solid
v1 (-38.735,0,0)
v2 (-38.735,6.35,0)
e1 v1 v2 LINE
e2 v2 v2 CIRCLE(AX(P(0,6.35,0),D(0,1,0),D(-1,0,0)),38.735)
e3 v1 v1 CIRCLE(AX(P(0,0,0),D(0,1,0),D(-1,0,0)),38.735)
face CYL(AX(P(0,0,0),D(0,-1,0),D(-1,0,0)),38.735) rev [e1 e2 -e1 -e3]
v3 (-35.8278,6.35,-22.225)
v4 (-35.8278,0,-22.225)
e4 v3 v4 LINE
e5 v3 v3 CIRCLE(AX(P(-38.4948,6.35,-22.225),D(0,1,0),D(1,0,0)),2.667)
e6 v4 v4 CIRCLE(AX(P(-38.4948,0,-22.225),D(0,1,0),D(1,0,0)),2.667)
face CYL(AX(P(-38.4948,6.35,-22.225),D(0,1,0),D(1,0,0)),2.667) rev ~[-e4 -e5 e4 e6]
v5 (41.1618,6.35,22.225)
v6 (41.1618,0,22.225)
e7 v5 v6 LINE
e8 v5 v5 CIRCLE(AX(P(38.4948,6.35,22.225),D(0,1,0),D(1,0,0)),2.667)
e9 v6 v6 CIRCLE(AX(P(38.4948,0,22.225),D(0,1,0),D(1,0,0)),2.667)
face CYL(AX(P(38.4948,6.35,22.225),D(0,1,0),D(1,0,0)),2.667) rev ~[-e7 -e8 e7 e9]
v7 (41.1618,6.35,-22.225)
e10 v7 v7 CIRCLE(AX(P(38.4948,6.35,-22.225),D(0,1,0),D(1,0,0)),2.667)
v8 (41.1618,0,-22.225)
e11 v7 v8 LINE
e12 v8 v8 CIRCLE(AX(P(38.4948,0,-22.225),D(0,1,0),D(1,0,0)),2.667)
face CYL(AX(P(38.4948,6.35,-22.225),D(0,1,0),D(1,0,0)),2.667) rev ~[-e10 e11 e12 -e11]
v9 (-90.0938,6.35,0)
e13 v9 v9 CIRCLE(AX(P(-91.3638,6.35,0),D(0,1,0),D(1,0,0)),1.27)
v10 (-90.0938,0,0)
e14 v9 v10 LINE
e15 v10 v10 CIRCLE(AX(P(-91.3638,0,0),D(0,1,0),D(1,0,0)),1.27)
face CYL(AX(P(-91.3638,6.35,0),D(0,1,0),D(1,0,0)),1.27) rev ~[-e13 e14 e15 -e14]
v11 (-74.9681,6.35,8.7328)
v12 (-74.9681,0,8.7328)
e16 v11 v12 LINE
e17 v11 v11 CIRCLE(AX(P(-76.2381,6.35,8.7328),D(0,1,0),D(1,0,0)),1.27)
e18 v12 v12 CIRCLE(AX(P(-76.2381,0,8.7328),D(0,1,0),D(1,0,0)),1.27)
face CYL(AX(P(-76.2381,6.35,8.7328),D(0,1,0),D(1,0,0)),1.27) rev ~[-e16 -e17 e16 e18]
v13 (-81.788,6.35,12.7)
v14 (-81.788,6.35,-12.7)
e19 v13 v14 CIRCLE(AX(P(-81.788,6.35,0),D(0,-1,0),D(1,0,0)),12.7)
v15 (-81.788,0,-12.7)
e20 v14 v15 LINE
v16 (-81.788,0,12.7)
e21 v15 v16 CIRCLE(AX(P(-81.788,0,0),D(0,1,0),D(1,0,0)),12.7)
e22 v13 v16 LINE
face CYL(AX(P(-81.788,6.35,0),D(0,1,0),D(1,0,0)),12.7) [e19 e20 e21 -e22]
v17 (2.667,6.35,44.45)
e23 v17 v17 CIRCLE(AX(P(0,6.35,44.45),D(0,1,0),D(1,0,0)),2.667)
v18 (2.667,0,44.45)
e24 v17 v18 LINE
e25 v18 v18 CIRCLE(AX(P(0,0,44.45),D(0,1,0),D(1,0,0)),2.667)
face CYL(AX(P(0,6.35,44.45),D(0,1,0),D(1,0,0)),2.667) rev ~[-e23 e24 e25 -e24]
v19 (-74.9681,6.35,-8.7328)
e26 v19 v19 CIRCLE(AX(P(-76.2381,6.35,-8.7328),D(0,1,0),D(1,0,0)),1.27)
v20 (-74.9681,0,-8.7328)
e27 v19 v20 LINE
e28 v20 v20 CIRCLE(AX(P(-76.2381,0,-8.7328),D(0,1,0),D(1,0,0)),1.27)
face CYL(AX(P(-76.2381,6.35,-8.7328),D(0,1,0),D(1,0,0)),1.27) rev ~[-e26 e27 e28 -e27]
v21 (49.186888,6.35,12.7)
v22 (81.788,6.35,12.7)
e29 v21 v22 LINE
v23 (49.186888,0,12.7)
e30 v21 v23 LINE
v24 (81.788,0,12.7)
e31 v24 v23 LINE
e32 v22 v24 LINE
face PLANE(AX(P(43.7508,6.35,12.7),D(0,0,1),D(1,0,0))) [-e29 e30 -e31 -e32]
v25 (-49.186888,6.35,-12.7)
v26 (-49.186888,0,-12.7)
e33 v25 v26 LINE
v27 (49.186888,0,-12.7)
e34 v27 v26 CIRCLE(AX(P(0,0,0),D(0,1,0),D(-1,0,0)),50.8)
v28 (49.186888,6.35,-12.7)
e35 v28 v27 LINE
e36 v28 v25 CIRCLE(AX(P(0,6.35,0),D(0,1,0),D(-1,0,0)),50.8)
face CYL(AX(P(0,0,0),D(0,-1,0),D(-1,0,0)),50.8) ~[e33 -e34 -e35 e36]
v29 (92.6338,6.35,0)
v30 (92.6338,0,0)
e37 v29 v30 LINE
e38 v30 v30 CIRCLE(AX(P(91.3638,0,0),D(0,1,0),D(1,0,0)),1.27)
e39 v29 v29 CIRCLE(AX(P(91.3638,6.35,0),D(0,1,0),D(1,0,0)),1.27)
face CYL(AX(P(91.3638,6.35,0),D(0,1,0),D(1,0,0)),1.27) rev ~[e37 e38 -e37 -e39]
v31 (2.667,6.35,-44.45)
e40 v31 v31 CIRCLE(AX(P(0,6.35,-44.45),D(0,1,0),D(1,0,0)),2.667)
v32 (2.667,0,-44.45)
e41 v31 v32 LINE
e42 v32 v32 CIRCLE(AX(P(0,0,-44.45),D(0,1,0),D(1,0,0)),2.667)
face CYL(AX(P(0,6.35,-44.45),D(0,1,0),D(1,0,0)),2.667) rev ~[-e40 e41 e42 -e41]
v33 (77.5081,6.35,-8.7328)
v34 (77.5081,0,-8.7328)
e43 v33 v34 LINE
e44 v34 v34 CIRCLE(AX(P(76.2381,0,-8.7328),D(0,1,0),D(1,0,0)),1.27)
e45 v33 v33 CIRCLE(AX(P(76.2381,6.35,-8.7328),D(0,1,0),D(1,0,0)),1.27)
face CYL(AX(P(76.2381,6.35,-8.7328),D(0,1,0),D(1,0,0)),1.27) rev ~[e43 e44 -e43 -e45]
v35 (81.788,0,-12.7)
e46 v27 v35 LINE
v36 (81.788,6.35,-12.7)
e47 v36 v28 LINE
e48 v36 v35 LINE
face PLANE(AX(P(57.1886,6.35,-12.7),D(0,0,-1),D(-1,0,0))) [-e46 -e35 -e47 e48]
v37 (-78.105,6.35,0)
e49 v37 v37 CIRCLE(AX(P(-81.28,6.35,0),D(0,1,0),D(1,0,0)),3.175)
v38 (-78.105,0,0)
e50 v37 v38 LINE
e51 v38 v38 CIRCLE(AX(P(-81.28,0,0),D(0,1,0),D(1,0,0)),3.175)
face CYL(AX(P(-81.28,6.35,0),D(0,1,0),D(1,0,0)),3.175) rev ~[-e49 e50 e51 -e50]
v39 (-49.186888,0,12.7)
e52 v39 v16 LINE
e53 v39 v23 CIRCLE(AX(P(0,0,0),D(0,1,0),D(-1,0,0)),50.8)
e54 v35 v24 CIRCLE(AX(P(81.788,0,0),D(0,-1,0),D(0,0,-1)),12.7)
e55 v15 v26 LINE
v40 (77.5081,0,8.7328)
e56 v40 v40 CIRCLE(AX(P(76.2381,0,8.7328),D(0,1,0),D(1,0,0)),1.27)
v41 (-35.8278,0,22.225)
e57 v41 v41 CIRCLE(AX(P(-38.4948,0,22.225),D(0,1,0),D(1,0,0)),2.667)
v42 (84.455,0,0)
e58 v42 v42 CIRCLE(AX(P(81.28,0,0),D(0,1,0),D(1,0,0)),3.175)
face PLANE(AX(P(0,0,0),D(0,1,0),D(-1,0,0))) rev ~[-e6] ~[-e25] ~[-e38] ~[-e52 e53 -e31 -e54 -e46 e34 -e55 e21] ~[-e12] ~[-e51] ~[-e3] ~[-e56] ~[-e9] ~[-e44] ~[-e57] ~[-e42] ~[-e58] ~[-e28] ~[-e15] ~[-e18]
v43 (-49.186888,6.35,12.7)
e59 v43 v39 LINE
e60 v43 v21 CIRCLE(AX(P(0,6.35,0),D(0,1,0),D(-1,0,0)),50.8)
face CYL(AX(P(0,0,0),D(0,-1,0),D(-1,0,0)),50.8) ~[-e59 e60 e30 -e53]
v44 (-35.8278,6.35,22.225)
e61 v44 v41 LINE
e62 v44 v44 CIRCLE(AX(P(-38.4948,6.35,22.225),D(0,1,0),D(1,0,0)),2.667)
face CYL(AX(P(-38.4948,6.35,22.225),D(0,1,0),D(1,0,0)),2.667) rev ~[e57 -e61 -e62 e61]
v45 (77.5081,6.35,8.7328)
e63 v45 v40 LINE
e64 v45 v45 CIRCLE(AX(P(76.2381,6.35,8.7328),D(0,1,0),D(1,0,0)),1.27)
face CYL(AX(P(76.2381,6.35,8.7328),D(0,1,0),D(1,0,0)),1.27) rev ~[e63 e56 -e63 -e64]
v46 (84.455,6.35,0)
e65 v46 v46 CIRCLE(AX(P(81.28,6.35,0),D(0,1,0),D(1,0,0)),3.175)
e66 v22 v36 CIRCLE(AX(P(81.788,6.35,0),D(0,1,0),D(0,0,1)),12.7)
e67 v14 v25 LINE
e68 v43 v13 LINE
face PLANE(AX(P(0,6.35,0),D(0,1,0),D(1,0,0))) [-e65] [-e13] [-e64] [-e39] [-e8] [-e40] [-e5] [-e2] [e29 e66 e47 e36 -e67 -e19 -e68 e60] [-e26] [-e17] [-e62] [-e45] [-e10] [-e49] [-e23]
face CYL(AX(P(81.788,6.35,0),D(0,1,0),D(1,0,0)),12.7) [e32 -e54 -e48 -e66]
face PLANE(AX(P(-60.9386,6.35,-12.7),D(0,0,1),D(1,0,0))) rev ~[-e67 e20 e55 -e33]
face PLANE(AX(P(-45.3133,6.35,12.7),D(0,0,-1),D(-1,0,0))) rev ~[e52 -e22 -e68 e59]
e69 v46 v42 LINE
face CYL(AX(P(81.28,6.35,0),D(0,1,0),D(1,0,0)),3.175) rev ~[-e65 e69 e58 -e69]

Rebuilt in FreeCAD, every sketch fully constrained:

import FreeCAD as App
import Part
import Sketcher
Q = App.Units.Quantity


def add_polygon(sketch, points):
    """Adds a closed chain of lines whose ends are joined by coincident constraints."""
    first, n = sketch.GeometryCount, len(points)
    for a, b in zip(points, points[1:] + points[:1]):
        sketch.addGeometry(Part.LineSegment(App.Vector(*a, 0), App.Vector(*b, 0)), False)
    for i in range(n):
        sketch.addConstraint(Sketcher.Constraint("Coincident", first + i, 2, first + (i + 1) % n, 1))

doc = App.newDocument("Part")
body = doc.addObject("PartDesign::Body", "Body")
body.AllowCompound = True

sketch1 = body.newObject("Sketcher::SketchObject", "Sketch")
sketch1.AttachmentSupport = (doc.getObject("XZ_Plane"), [""])
sketch1.MapMode = "FlatFace"
sketch1.addGeometry(Part.Circle(App.Vector(0, 0, 0), App.Vector(0, 0, 1), 51), False)
sketch1.addGeometry(Part.Circle(App.Vector(0, 0, 0), App.Vector(0, 0, 1), 39), False)
sketch1.addConstraint(Sketcher.Constraint("Coincident", 0, 3, -1, 1))
sketch1.addConstraint(Sketcher.Constraint("Coincident", 1, 3, -1, 1))
sketch1.addConstraint(Sketcher.Constraint("Diameter", 0, Q("4 in")))
sketch1.addConstraint(Sketcher.Constraint("Diameter", 1, Q("3.05 in")))
pad1 = body.newObject("PartDesign::Pad", "Pad")
pad1.Profile = sketch1
pad1.Length = Q("0.25 in")
pad1.Reversed = True

sketch2 = body.newObject("Sketcher::SketchObject", "Sketch001")
sketch2.AttachmentSupport = (doc.getObject("XZ_Plane"), [""])
sketch2.MapMode = "FlatFace"
sketch2.AttachmentOffset = App.Placement(App.Vector(0, 0, -0.25 * 25.4), App.Rotation())
sketch2.addGeometry(Part.Circle(App.Vector(0, 44.5, 0), App.Vector(0, 0, 1), 2.7), False)
sketch2.addGeometry(Part.Circle(App.Vector(38.5, 22.2, 0), App.Vector(0, 0, 1), 2.7), False)
sketch2.addGeometry(Part.Circle(App.Vector(38.5, -22.2, 0), App.Vector(0, 0, 1), 2.7), False)
sketch2.addGeometry(Part.Circle(App.Vector(0, -44.5, 0), App.Vector(0, 0, 1), 2.7), False)
sketch2.addGeometry(Part.Circle(App.Vector(-38.5, -22.2, 0), App.Vector(0, 0, 1), 2.7), False)
sketch2.addGeometry(Part.Circle(App.Vector(-38.5, 22.2, 0), App.Vector(0, 0, 1), 2.7), False)
sketch2.addConstraint(Sketcher.Constraint("Equal", 0, 1))
sketch2.addConstraint(Sketcher.Constraint("Equal", 1, 2))
sketch2.addConstraint(Sketcher.Constraint("Equal", 2, 3))
sketch2.addConstraint(Sketcher.Constraint("Equal", 3, 4))
sketch2.addConstraint(Sketcher.Constraint("Equal", 4, 5))
sketch2.addConstraint(Sketcher.Constraint("Symmetric", 0, 3, 3, 3, -1, 1))
sketch2.addConstraint(Sketcher.Constraint("Symmetric", 1, 3, 4, 3, -1, 1))
sketch2.addConstraint(Sketcher.Constraint("Symmetric", 2, 3, 5, 3, -1, 1))
sketch2.addConstraint(Sketcher.Constraint("Symmetric", 2, 3, 4, 3, -2))
sketch2.addConstraint(Sketcher.Constraint("PointOnObject", 0, 3, -2))
sketch2.addConstraint(Sketcher.Constraint("Diameter", 0, Q("0.21 in")))
sketch2.addConstraint(Sketcher.Constraint("DistanceY", 3, 3, 0, 3, Q("3.5 in")))
sketch2.addConstraint(Sketcher.Constraint("DistanceY", 2, 3, 1, 3, Q("1.75 in")))
sketch2.addConstraint(Sketcher.Constraint("DistanceX", -1, 1, 1, 3, Q("38.4948 mm")))
pocket1 = body.newObject("PartDesign::Pocket", "Pocket")
pocket1.Profile = sketch2
pocket1.Length = Q("0.25 in")
pocket1.Reversed = True

sketch3 = body.newObject("Sketcher::SketchObject", "Sketch002")
sketch3.AttachmentSupport = (doc.getObject("XZ_Plane"), [""])
sketch3.MapMode = "FlatFace"
sketch3.AttachmentOffset = App.Placement(App.Vector(0, 0, -0.25 * 25.4), App.Rotation())
add_polygon(sketch3, [(82, -13), (51, -13), (51, 13), (82, 13)])
add_polygon(sketch3, [(-51, 13), (-51, -13), (-82, -13), (-82, 13)])
sketch3.addConstraint(Sketcher.Constraint("Horizontal", 0))
sketch3.addConstraint(Sketcher.Constraint("Vertical", 1))
sketch3.addConstraint(Sketcher.Constraint("Horizontal", 2))
sketch3.addConstraint(Sketcher.Constraint("Vertical", 3))
sketch3.addConstraint(Sketcher.Constraint("Vertical", 4))
sketch3.addConstraint(Sketcher.Constraint("Horizontal", 5))
sketch3.addConstraint(Sketcher.Constraint("Vertical", 6))
sketch3.addConstraint(Sketcher.Constraint("Horizontal", 7))
sketch3.addConstraint(Sketcher.Constraint("Symmetric", 1, 2, 4, 2, -1, 1))
sketch3.addConstraint(Sketcher.Constraint("Symmetric", 3, 2, 6, 2, -1, 1))
sketch3.addConstraint(Sketcher.Constraint("Horizontal", 3, 2, 4, 2))
sketch3.addConstraint(Sketcher.Constraint("DistanceY", 1, 1, 1, 2, Q("1 in")))
sketch3.addConstraint(Sketcher.Constraint("DistanceX", 0, 2, 0, 1, Q("1.22 in")))
sketch3.addConstraint(Sketcher.Constraint("DistanceX", -1, 1, 0, 2, Q("2 in")))
pad2 = body.newObject("PartDesign::Pad", "Pad001")
pad2.Profile = sketch3
pad2.Length = Q("0.25 in")

sketch4 = body.newObject("Sketcher::SketchObject", "Sketch003")
sketch4.AttachmentSupport = (doc.getObject("XZ_Plane"), [""])
sketch4.MapMode = "FlatFace"
sketch4.AttachmentOffset = App.Placement(App.Vector(0, 0, -0.25 * 25.4), App.Rotation())
add_polygon(sketch4, [(-45, -13), (-61, -13), (-61, 13), (-45, 13)])
add_polygon(sketch4, [(57, 13), (57, -13), (44, -13), (44, 13)])
sketch4.addConstraint(Sketcher.Constraint("Horizontal", 0))
sketch4.addConstraint(Sketcher.Constraint("Vertical", 1))
sketch4.addConstraint(Sketcher.Constraint("Horizontal", 2))
sketch4.addConstraint(Sketcher.Constraint("Vertical", 3))
sketch4.addConstraint(Sketcher.Constraint("Vertical", 4))
sketch4.addConstraint(Sketcher.Constraint("Horizontal", 5))
sketch4.addConstraint(Sketcher.Constraint("Vertical", 6))
sketch4.addConstraint(Sketcher.Constraint("Horizontal", 7))
sketch4.addConstraint(Sketcher.Constraint("Horizontal", 3, 2, 4, 2))
sketch4.addConstraint(Sketcher.Constraint("Horizontal", 2, 2, 6, 2))
sketch4.addConstraint(Sketcher.Constraint("DistanceY", 1, 1, 1, 2, Q("1 in")))
sketch4.addConstraint(Sketcher.Constraint("DistanceY", 0, 2, -1, 1, Q("0.5 in")))
sketch4.addConstraint(Sketcher.Constraint("DistanceX", 2, 2, -1, 1, Q("1.784 in")))
sketch4.addConstraint(Sketcher.Constraint("DistanceX", 0, 2, 0, 1, Q("15.6253 mm")))
sketch4.addConstraint(Sketcher.Constraint("DistanceX", 5, 2, 5, 1, Q("13.4378 mm")))
sketch4.addConstraint(Sketcher.Constraint("DistanceX", 3, 2, 4, 2, Q("4.0355 in")))
pad3 = body.newObject("PartDesign::Pad", "Pad002")
pad3.Profile = sketch4
pad3.Length = Q("0.25 in")

sketch5 = body.newObject("Sketcher::SketchObject", "Sketch004")
sketch5.AttachmentSupport = (doc.getObject("XZ_Plane"), [""])
sketch5.MapMode = "FlatFace"
sketch5.AttachmentOffset = App.Placement(App.Vector(0, 0, -0.25 * 25.4), App.Rotation())
sketch5.addGeometry(Part.Circle(App.Vector(82, 0, 0), App.Vector(0, 0, 1), 13), False)
sketch5.addGeometry(Part.Circle(App.Vector(-82, 0, 0), App.Vector(0, 0, 1), 13), False)
sketch5.addConstraint(Sketcher.Constraint("Equal", 0, 1))
sketch5.addConstraint(Sketcher.Constraint("Symmetric", 0, 3, 1, 3, -1, 1))
sketch5.addConstraint(Sketcher.Constraint("PointOnObject", 0, 3, -1))
sketch5.addConstraint(Sketcher.Constraint("Diameter", 0, Q("1 in")))
sketch5.addConstraint(Sketcher.Constraint("DistanceX", -1, 1, 0, 3, Q("3.22 in")))
pad4 = body.newObject("PartDesign::Pad", "Pad003")
pad4.Profile = sketch5
pad4.Length = Q("0.25 in")

sketch6 = body.newObject("Sketcher::SketchObject", "Sketch005")
sketch6.AttachmentSupport = (doc.getObject("XZ_Plane"), [""])
sketch6.MapMode = "FlatFace"
sketch6.AttachmentOffset = App.Placement(App.Vector(0, 0, -0.25 * 25.4), App.Rotation())
sketch6.addGeometry(Part.Circle(App.Vector(81.3, 0, 0), App.Vector(0, 0, 1), 3.2), False)
sketch6.addGeometry(Part.Circle(App.Vector(91.4, 0, 0), App.Vector(0, 0, 1), 1.3), False)
sketch6.addGeometry(Part.Circle(App.Vector(76.2, -8.7, 0), App.Vector(0, 0, 1), 1.3), False)
sketch6.addGeometry(Part.Circle(App.Vector(76.2, 8.7, 0), App.Vector(0, 0, 1), 1.3), False)
sketch6.addGeometry(Part.Circle(App.Vector(-81.3, 0, 0), App.Vector(0, 0, 1), 3.2), False)
sketch6.addGeometry(Part.Circle(App.Vector(-91.4, 0, 0), App.Vector(0, 0, 1), 1.3), False)
sketch6.addGeometry(Part.Circle(App.Vector(-76.2, 8.7, 0), App.Vector(0, 0, 1), 1.3), False)
sketch6.addGeometry(Part.Circle(App.Vector(-76.2, -8.7, 0), App.Vector(0, 0, 1), 1.3), False)
sketch6.addConstraint(Sketcher.Constraint("Equal", 1, 2))
sketch6.addConstraint(Sketcher.Constraint("Equal", 2, 3))
sketch6.addConstraint(Sketcher.Constraint("Equal", 0, 4))
sketch6.addConstraint(Sketcher.Constraint("Equal", 3, 5))
sketch6.addConstraint(Sketcher.Constraint("Equal", 5, 6))
sketch6.addConstraint(Sketcher.Constraint("Equal", 6, 7))
sketch6.addConstraint(Sketcher.Constraint("Symmetric", 0, 3, 4, 3, -1, 1))
sketch6.addConstraint(Sketcher.Constraint("Symmetric", 1, 3, 5, 3, -1, 1))
sketch6.addConstraint(Sketcher.Constraint("Symmetric", 2, 3, 6, 3, -1, 1))
sketch6.addConstraint(Sketcher.Constraint("Symmetric", 3, 3, 7, 3, -1, 1))
sketch6.addConstraint(Sketcher.Constraint("Symmetric", 3, 3, 6, 3, -2))
sketch6.addConstraint(Sketcher.Constraint("PointOnObject", 0, 3, -1))
sketch6.addConstraint(Sketcher.Constraint("PointOnObject", 1, 3, -1))
sketch6.addConstraint(Sketcher.Constraint("Diameter", 1, Q("0.1 in")))
sketch6.addConstraint(Sketcher.Constraint("Diameter", 0, Q("0.25 in")))
sketch6.addConstraint(Sketcher.Constraint("DistanceX", -1, 1, 0, 3, Q("3.2 in")))
sketch6.addConstraint(Sketcher.Constraint("DistanceX", -1, 1, 1, 3, Q("3.597 in")))
sketch6.addConstraint(Sketcher.Constraint("DistanceX", 6, 3, 3, 3, Q("6.003 in")))
sketch6.addConstraint(Sketcher.Constraint("DistanceY", 2, 3, -1, 1, Q("0.3438 in")))
pocket2 = body.newObject("PartDesign::Pocket", "Pocket001")
pocket2.Profile = sketch6
pocket2.Length = Q("0.25 in")
pocket2.Reversed = True

doc.recompute()
